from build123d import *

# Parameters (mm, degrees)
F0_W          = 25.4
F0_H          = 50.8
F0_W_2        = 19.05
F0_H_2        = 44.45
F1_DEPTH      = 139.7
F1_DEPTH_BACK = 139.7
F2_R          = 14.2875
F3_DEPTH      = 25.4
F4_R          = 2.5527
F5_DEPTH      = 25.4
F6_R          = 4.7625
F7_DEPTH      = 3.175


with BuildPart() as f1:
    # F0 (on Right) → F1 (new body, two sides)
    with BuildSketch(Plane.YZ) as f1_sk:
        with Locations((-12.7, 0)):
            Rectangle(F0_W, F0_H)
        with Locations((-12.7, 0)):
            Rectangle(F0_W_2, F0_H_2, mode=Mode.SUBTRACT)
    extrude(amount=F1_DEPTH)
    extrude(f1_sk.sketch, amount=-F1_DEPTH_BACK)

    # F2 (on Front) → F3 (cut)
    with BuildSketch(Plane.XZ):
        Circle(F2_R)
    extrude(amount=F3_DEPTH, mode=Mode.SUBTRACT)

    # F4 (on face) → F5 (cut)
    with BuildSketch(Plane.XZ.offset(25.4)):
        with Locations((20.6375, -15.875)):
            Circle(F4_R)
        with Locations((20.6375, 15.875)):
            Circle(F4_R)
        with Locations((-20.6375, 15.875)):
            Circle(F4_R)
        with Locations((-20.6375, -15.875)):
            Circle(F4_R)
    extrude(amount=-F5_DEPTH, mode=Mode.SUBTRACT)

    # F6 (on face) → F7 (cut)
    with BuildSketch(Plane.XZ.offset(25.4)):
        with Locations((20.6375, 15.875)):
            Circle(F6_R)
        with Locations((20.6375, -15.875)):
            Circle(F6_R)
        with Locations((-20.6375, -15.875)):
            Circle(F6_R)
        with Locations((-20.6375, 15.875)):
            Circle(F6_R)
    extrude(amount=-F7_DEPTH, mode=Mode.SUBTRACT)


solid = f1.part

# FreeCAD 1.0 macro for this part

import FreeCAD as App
import Part
import Sketcher
Q = App.Units.Quantity


def add_polygon(sketch, points):
    """Adds a closed chain of lines whose ends are joined by coincident constraints."""
    first, n = sketch.GeometryCount, len(points)
    for a, b in zip(points, points[1:] + points[:1]):
        sketch.addGeometry(Part.LineSegment(App.Vector(*a, 0), App.Vector(*b, 0)), False)
    for i in range(n):
        sketch.addConstraint(Sketcher.Constraint("Coincident", first + i, 2, first + (i + 1) % n, 1))

doc = App.newDocument("Part")
body = doc.addObject("PartDesign::Body", "Body")

# Sketch on YZ plane
sketch1 = body.newObject("Sketcher::SketchObject", "Sketch")
sketch1.AttachmentSupport = (doc.getObject("YZ_Plane"), [""])
sketch1.MapMode = "FlatFace"
add_polygon(sketch1, [(-25, 25), (-25, -25), (0, -25), (0, 25)])  # lines 0-3
add_polygon(sketch1, [(-3, -22), (-22, -22), (-22, 22), (-3, 22)])  # lines 4-7
sketch1.addConstraint(Sketcher.Constraint("Vertical", 0))
sketch1.addConstraint(Sketcher.Constraint("Horizontal", 1))
sketch1.addConstraint(Sketcher.Constraint("Vertical", 2))
sketch1.addConstraint(Sketcher.Constraint("Horizontal", 3))
sketch1.addConstraint(Sketcher.Constraint("Horizontal", 4))
sketch1.addConstraint(Sketcher.Constraint("Vertical", 5))
sketch1.addConstraint(Sketcher.Constraint("Horizontal", 6))
sketch1.addConstraint(Sketcher.Constraint("Vertical", 7))
sketch1.addConstraint(Sketcher.Constraint("Symmetric", 1, 2, 2, 2, -1, 1))
sketch1.addConstraint(Sketcher.Constraint("DistanceX", 1, 1, 1, 2, Q("1 in")))
sketch1.addConstraint(Sketcher.Constraint("DistanceY", 0, 2, 0, 1, Q("2 in")))
sketch1.addConstraint(Sketcher.Constraint("DistanceX", 4, 2, 4, 1, Q("0.75 in")))
sketch1.addConstraint(Sketcher.Constraint("DistanceY", 5, 1, 5, 2, Q("1.75 in")))
sketch1.addConstraint(Sketcher.Constraint("DistanceX", 4, 2, -1, 1, Q("0.875 in")))
sketch1.addConstraint(Sketcher.Constraint("DistanceY", 4, 2, -1, 1, Q("0.875 in")))
pad1 = body.newObject("PartDesign::Pad", "Pad")
pad1.Profile = sketch1
pad1.Type = "TwoLengths"
pad1.Length = Q("5.5 in")
pad1.Length2 = Q("5.5 in")

# Sketch on XZ plane
sketch2 = body.newObject("Sketcher::SketchObject", "Sketch001")
sketch2.AttachmentSupport = (doc.getObject("XZ_Plane"), [""])
sketch2.MapMode = "FlatFace"
sketch2.addGeometry(Part.Circle(App.Vector(0, 0, 0), App.Vector(0, 0, 1), 14), False)
sketch2.addConstraint(Sketcher.Constraint("Coincident", 0, 3, -1, 1))
sketch2.addConstraint(Sketcher.Constraint("Diameter", 0, Q("1.125 in")))
pocket1 = body.newObject("PartDesign::Pocket", "Pocket")
pocket1.Profile = sketch2
pocket1.Length = Q("1 in")
pocket1.Reversed = True

# Sketch on XZ plane
sketch3 = body.newObject("Sketcher::SketchObject", "Sketch002")
sketch3.AttachmentSupport = (doc.getObject("XZ_Plane"), [""])
sketch3.MapMode = "FlatFace"
sketch3.AttachmentOffset = App.Placement(App.Vector(0, 0, 1 * 25.4), App.Rotation())
sketch3.addGeometry(Part.Circle(App.Vector(20.6, -15.9, 0), App.Vector(0, 0, 1), 2.6), False)
sketch3.addGeometry(Part.Circle(App.Vector(20.6, 15.9, 0), App.Vector(0, 0, 1), 2.6), False)
sketch3.addGeometry(Part.Circle(App.Vector(-20.6, 15.9, 0), App.Vector(0, 0, 1), 2.6), False)
sketch3.addGeometry(Part.Circle(App.Vector(-20.6, -15.9, 0), App.Vector(0, 0, 1), 2.6), False)
sketch3.addConstraint(Sketcher.Constraint("Equal", 0, 1))
sketch3.addConstraint(Sketcher.Constraint("Equal", 1, 2))
sketch3.addConstraint(Sketcher.Constraint("Equal", 2, 3))
sketch3.addConstraint(Sketcher.Constraint("Symmetric", 0, 3, 2, 3, -1, 1))
sketch3.addConstraint(Sketcher.Constraint("Symmetric", 1, 3, 3, 3, -1, 1))
sketch3.addConstraint(Sketcher.Constraint("Symmetric", 1, 3, 2, 3, -2))
sketch3.addConstraint(Sketcher.Constraint("Diameter", 0, Q("0.201 in")))
sketch3.addConstraint(Sketcher.Constraint("DistanceY", 0, 3, 1, 3, Q("1.25 in")))
sketch3.addConstraint(Sketcher.Constraint("DistanceX", -1, 1, 0, 3, Q("0.8125 in")))
pocket2 = body.newObject("PartDesign::Pocket", "Pocket001")
pocket2.Profile = sketch3
pocket2.Length = Q("1 in")

# Sketch on XZ plane
sketch4 = body.newObject("Sketcher::SketchObject", "Sketch003")
sketch4.AttachmentSupport = (doc.getObject("XZ_Plane"), [""])
sketch4.MapMode = "FlatFace"
sketch4.AttachmentOffset = App.Placement(App.Vector(0, 0, 1 * 25.4), App.Rotation())
sketch4.addGeometry(Part.Circle(App.Vector(20.6, 15.9, 0), App.Vector(0, 0, 1), 4.8), False)
sketch4.addGeometry(Part.Circle(App.Vector(20.6, -15.9, 0), App.Vector(0, 0, 1), 4.8), False)
sketch4.addGeometry(Part.Circle(App.Vector(-20.6, -15.9, 0), App.Vector(0, 0, 1), 4.8), False)
sketch4.addGeometry(Part.Circle(App.Vector(-20.6, 15.9, 0), App.Vector(0, 0, 1), 4.8), False)
sketch4.addConstraint(Sketcher.Constraint("Equal", 0, 1))
sketch4.addConstraint(Sketcher.Constraint("Equal", 1, 2))
sketch4.addConstraint(Sketcher.Constraint("Equal", 2, 3))
sketch4.addConstraint(Sketcher.Constraint("Symmetric", 0, 3, 2, 3, -1, 1))
sketch4.addConstraint(Sketcher.Constraint("Symmetric", 1, 3, 3, 3, -1, 1))
sketch4.addConstraint(Sketcher.Constraint("Symmetric", 1, 3, 2, 3, -2))
sketch4.addConstraint(Sketcher.Constraint("Diameter", 0, Q("0.375 in")))
sketch4.addConstraint(Sketcher.Constraint("DistanceY", 1, 3, 0, 3, Q("1.25 in")))
sketch4.addConstraint(Sketcher.Constraint("DistanceX", -1, 1, 0, 3, Q("0.8125 in")))
pocket3 = body.newObject("PartDesign::Pocket", "Pocket002")
pocket3.Profile = sketch4
pocket3.Length = Q("0.125 in")

doc.recompute()
